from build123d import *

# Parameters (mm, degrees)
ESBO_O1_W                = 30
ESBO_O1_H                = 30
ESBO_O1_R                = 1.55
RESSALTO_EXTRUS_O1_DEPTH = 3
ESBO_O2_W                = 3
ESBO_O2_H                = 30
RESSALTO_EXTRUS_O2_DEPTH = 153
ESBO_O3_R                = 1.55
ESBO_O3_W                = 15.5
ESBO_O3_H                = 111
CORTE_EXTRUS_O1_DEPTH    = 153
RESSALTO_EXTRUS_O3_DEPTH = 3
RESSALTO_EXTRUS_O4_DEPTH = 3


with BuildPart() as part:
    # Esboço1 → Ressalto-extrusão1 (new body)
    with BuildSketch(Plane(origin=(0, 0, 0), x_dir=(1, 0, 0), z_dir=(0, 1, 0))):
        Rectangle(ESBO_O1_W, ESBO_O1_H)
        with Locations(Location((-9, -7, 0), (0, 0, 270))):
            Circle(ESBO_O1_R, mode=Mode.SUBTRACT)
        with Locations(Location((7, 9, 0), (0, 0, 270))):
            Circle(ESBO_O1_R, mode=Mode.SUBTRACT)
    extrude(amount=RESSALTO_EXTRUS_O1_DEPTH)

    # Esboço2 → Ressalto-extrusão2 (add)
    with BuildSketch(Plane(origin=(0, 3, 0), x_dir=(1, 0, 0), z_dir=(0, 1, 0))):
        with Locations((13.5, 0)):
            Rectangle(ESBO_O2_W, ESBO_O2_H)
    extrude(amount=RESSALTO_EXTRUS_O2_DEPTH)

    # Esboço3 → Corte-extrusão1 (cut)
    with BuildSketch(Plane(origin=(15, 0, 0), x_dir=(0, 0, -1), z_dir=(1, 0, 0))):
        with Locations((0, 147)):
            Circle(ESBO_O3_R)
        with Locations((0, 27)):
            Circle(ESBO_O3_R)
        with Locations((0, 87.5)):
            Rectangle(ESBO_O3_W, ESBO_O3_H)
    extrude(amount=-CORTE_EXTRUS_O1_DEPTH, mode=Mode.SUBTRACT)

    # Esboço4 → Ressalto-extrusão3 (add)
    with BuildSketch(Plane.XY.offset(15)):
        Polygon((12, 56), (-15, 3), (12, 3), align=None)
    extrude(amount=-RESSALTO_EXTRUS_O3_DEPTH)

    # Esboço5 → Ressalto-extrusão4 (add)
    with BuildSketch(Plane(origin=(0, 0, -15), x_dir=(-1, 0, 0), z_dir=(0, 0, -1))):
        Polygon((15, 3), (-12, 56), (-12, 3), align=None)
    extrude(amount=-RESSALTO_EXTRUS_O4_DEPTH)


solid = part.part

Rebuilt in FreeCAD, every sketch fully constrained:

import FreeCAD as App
import Part
import Sketcher

doc = App.newDocument("Part")
body = doc.addObject("PartDesign::Body", "Body")

# Sketch on XZ plane
sketch1 = doc.addObject("Sketcher::SketchObject", "Sketch")
body.addObject(sketch1)
sketch1.AttachmentSupport = (doc.XZ_Plane, [""])
sketch1.MapMode = "FlatFace"
sketch1.addGeometry([
    Part.LineSegment(App.Vector(-15, -15, 0), App.Vector(-15, 15, 0)),  # 0
    Part.LineSegment(App.Vector(-15, 15, 0), App.Vector(15, 15, 0)),  # 1
    Part.LineSegment(App.Vector(15, 15, 0), App.Vector(15, -15, 0)),  # 2
    Part.LineSegment(App.Vector(15, -15, 0), App.Vector(-15, -15, 0)),  # 3
    Part.Circle(App.Vector(-9, 7, 0), App.Vector(0, 0, 1), 1.55),  # 4
    Part.Circle(App.Vector(7, -9, 0), App.Vector(0, 0, 1), 1.55),  # 5
], False)
sketch1.addConstraint([
    Sketcher.Constraint("Coincident", 0, 2, 1, 1),
    Sketcher.Constraint("Coincident", 1, 2, 2, 1),
    Sketcher.Constraint("Coincident", 2, 2, 3, 1),
    Sketcher.Constraint("Coincident", 3, 2, 0, 1),
    Sketcher.Constraint("Vertical", 0),
    Sketcher.Constraint("Horizontal", 1),
    Sketcher.Constraint("Vertical", 2),
    Sketcher.Constraint("Horizontal", 3),
    Sketcher.Constraint("Equal", 4, 5),
    Sketcher.Constraint("Symmetric", 0, 2, 2, 2, -1, 1),
    Sketcher.Constraint("Equal", 3, 0),
    Sketcher.Constraint("Diameter", 4, 3.1),
    Sketcher.Constraint("DistanceX", 1, 1, 1, 2, 30.0),
    Sketcher.Constraint("DistanceX", 4, 3, -1, 1, 9.0),
    Sketcher.Constraint("DistanceY", -1, 1, 4, 3, 7.0),
    Sketcher.Constraint("DistanceX", -1, 1, 5, 3, 7.0),
    Sketcher.Constraint("DistanceY", 5, 3, -1, 1, 9.0),
])
pad1 = doc.addObject("PartDesign::Pad", "Pad")
body.addObject(pad1)
pad1.Profile = sketch1
pad1.Length = 3
pad1.Reversed = True

# Sketch on XZ plane
sketch2 = doc.addObject("Sketcher::SketchObject", "Sketch001")
body.addObject(sketch2)
sketch2.AttachmentSupport = (doc.XZ_Plane, [""])
sketch2.MapMode = "FlatFace"
sketch2.AttachmentOffset = App.Placement(App.Vector(0, 0, -3), App.Rotation())
sketch2.addGeometry([
    Part.LineSegment(App.Vector(12, -15, 0), App.Vector(12, 15, 0)),
    Part.LineSegment(App.Vector(12, 15, 0), App.Vector(15, 15, 0)),
    Part.LineSegment(App.Vector(15, 15, 0), App.Vector(15, -15, 0)),
    Part.LineSegment(App.Vector(15, -15, 0), App.Vector(12, -15, 0)),
], False)
sketch2.addConstraint([
    Sketcher.Constraint("Coincident", 0, 2, 1, 1),
    Sketcher.Constraint("Coincident", 1, 2, 2, 1),
    Sketcher.Constraint("Coincident", 2, 2, 3, 1),
    Sketcher.Constraint("Coincident", 3, 2, 0, 1),
    Sketcher.Constraint("Vertical", 0),
    Sketcher.Constraint("Horizontal", 1),
    Sketcher.Constraint("Vertical", 2),
    Sketcher.Constraint("Horizontal", 3),
    Sketcher.Constraint("DistanceX", 1, 1, 1, 2, 3.0),
    Sketcher.Constraint("DistanceY", 0, 1, 0, 2, 30.0),
    Sketcher.Constraint("DistanceX", -1, 1, 0, 2, 12.0),
    Sketcher.Constraint("DistanceY", -1, 1, 0, 2, 15.0),
])
pad2 = doc.addObject("PartDesign::Pad", "Pad001")
body.addObject(pad2)
pad2.Profile = sketch2
pad2.Length = 153
pad2.Reversed = True

# Sketch on YZ plane
sketch3 = doc.addObject("Sketcher::SketchObject", "Sketch002")
body.addObject(sketch3)
sketch3.AttachmentSupport = (doc.YZ_Plane, [""])
sketch3.MapMode = "FlatFace"
sketch3.AttachmentOffset = App.Placement(App.Vector(0, 0, 15), App.Rotation())
sketch3.addGeometry([
    Part.Circle(App.Vector(147, 0, 0), App.Vector(0, 0, 1), 1.55),  # 0
    Part.Circle(App.Vector(27, 0, 0), App.Vector(0, 0, 1), 1.55),  # 1
    Part.LineSegment(App.Vector(143, 7.75, 0), App.Vector(32, 7.75, 0)),  # 2
    Part.LineSegment(App.Vector(32, 7.75, 0), App.Vector(32, -7.75, 0)),  # 3
    Part.LineSegment(App.Vector(32, -7.75, 0), App.Vector(143, -7.75, 0)),  # 4
    Part.LineSegment(App.Vector(143, -7.75, 0), App.Vector(143, 7.75, 0)),  # 5
], False)
sketch3.addConstraint([
    Sketcher.Constraint("Coincident", 2, 2, 3, 1),
    Sketcher.Constraint("Coincident", 3, 2, 4, 1),
    Sketcher.Constraint("Coincident", 4, 2, 5, 1),
    Sketcher.Constraint("Coincident", 5, 2, 2, 1),
    Sketcher.Constraint("Horizontal", 2),
    Sketcher.Constraint("Vertical", 3),
    Sketcher.Constraint("Horizontal", 4),
    Sketcher.Constraint("Vertical", 5),
    Sketcher.Constraint("Equal", 0, 1),
    Sketcher.Constraint("PointOnObject", 0, 3, -1),
    Sketcher.Constraint("PointOnObject", 1, 3, -1),
    Sketcher.Constraint("Diameter", 0, 3.1),
    Sketcher.Constraint("DistanceX", 2, 2, 2, 1, 111.0),
    Sketcher.Constraint("DistanceY", 3, 2, 3, 1, 15.5),
    Sketcher.Constraint("DistanceX", -1, 1, 0, 3, 147.0),
    Sketcher.Constraint("DistanceX", -1, 1, 1, 3, 27.0),
    Sketcher.Constraint("DistanceX", -1, 1, 2, 2, 32.0),
    Sketcher.Constraint("DistanceY", -1, 1, 2, 2, 7.75),
])
pocket1 = doc.addObject("PartDesign::Pocket", "Pocket")
body.addObject(pocket1)
pocket1.Profile = sketch3
pocket1.Length = 153

# Sketch on XY plane
sketch4 = doc.addObject("Sketcher::SketchObject", "Sketch003")
body.addObject(sketch4)
sketch4.AttachmentSupport = (doc.XY_Plane, [""])
sketch4.MapMode = "FlatFace"
sketch4.AttachmentOffset = App.Placement(App.Vector(0, 0, 15), App.Rotation())
sketch4.addGeometry([
    Part.LineSegment(App.Vector(12, 56, 0), App.Vector(-15, 3, 0)),
    Part.LineSegment(App.Vector(-15, 3, 0), App.Vector(12, 3, 0)),
    Part.LineSegment(App.Vector(12, 3, 0), App.Vector(12, 56, 0)),
], False)
sketch4.addConstraint([
    Sketcher.Constraint("Coincident", 0, 2, 1, 1),
    Sketcher.Constraint("Coincident", 1, 2, 2, 1),
    Sketcher.Constraint("Coincident", 2, 2, 0, 1),
    Sketcher.Constraint("Horizontal", 1),
    Sketcher.Constraint("Vertical", 2),
    Sketcher.Constraint("DistanceX", 1, 1, 1, 2, 27.0),
    Sketcher.Constraint("DistanceY", 2, 1, 2, 2, 53.0),
    Sketcher.Constraint("DistanceX", 0, 2, -1, 1, 15.0),
    Sketcher.Constraint("DistanceY", -1, 1, 0, 2, 3.0),
])
pad3 = doc.addObject("PartDesign::Pad", "Pad002")
body.addObject(pad3)
pad3.Profile = sketch4
pad3.Length = 3
pad3.Reversed = True

# Sketch on XY plane
sketch5 = doc.addObject("Sketcher::SketchObject", "Sketch004")
body.addObject(sketch5)
sketch5.AttachmentSupport = (doc.XY_Plane, [""])
sketch5.MapMode = "FlatFace"
sketch5.AttachmentOffset = App.Placement(App.Vector(0, 0, -15), App.Rotation())
sketch5.addGeometry([
    Part.LineSegment(App.Vector(-15, 3, 0), App.Vector(12, 56, 0)),
    Part.LineSegment(App.Vector(12, 56, 0), App.Vector(12, 3, 0)),
    Part.LineSegment(App.Vector(12, 3, 0), App.Vector(-15, 3, 0)),
], False)
sketch5.addConstraint([
    Sketcher.Constraint("Coincident", 0, 2, 1, 1),
    Sketcher.Constraint("Coincident", 1, 2, 2, 1),
    Sketcher.Constraint("Coincident", 2, 2, 0, 1),
    Sketcher.Constraint("Vertical", 1),
    Sketcher.Constraint("Horizontal", 2),
    Sketcher.Constraint("DistanceX", 2, 2, 2, 1, 27.0),
    Sketcher.Constraint("DistanceY", 1, 2, 1, 1, 53.0),
    Sketcher.Constraint("DistanceX", -1, 1, 0, 2, 12.0),
    Sketcher.Constraint("DistanceY", -1, 1, 0, 2, 56.0),
])
pad4 = doc.addObject("PartDesign::Pad", "Pad003")
body.addObject(pad4)
pad4.Profile = sketch5
pad4.Length = 3

doc.recompute()
